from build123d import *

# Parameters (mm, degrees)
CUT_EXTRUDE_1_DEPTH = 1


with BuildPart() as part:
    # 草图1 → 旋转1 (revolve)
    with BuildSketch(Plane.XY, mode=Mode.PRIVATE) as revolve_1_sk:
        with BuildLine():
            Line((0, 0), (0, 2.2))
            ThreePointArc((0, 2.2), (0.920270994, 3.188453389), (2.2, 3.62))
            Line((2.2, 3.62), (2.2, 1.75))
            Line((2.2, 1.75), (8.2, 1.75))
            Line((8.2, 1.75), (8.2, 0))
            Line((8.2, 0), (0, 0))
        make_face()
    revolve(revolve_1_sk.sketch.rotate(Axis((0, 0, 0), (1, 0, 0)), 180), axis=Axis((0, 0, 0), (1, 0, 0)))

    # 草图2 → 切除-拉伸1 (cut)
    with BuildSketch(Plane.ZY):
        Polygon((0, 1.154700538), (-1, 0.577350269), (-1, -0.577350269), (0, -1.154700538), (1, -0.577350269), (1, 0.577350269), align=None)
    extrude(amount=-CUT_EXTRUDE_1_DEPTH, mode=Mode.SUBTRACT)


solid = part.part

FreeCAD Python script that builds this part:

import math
import FreeCAD as App
import Part
import Sketcher

V = App.Vector
Q = App.Units.Quantity


def add_polygon(sketch, points):
    """Adds a closed chain of lines whose ends are joined by coincident constraints."""
    first, n = sketch.GeometryCount, len(points)
    for a, b in zip(points, points[1:] + points[:1]):
        sketch.addGeometry(Part.LineSegment(App.Vector(*a, 0), App.Vector(*b, 0)), False)
    for i in range(n):
        sketch.addConstraint(Sketcher.Constraint("Coincident", first + i, 2, first + (i + 1) % n, 1))

doc = App.newDocument("Part")
body = doc.addObject("PartDesign::Body", "Body")

# Sketch on XY plane
sketch1 = body.newObject("Sketcher::SketchObject", "Sketch")
sketch1.AttachmentSupport = (doc.getObject("XY_Plane"), [""])
sketch1.MapMode = "FlatFace"
sketch1.addGeometry(Part.LineSegment(V(0, 2.2, 0), V(0, 0, 0)), False)
sketch1.addGeometry(Part.LineSegment(V(0, 0, 0), V(8.2, 0, 0)), False)
sketch1.addGeometry(Part.LineSegment(V(8.2, 0, 0), V(8.2, 1.8, 0)), False)
sketch1.addGeometry(Part.LineSegment(V(8.2, 1.8, 0), V(2.2, 1.8, 0)), False)
sketch1.addGeometry(Part.LineSegment(V(2.2, 1.8, 0), V(2.2, 3.6, 0)), False)
sketch1.addGeometry(Part.ArcOfCircle(Part.Circle(V(2.4, 0.9, 0), V(0, 0, 1), 2.8), math.radians(94), math.radians(151)), False)
sketch1.addConstraint(Sketcher.Constraint("Coincident", 0, 2, 1, 1))
sketch1.addConstraint(Sketcher.Constraint("Coincident", 1, 2, 2, 1))
sketch1.addConstraint(Sketcher.Constraint("Coincident", 2, 2, 3, 1))
sketch1.addConstraint(Sketcher.Constraint("Coincident", 3, 2, 4, 1))
sketch1.addConstraint(Sketcher.Constraint("Coincident", 4, 2, 5, 1))
sketch1.addConstraint(Sketcher.Constraint("Coincident", 5, 2, 0, 1))
sketch1.addConstraint(Sketcher.Constraint("Vertical", 0))
sketch1.addConstraint(Sketcher.Constraint("Horizontal", 1))
sketch1.addConstraint(Sketcher.Constraint("Vertical", 2))
sketch1.addConstraint(Sketcher.Constraint("Horizontal", 3))
sketch1.addConstraint(Sketcher.Constraint("Vertical", 4))
sketch1.addConstraint(Sketcher.Constraint("Coincident", 0, 2, -1, 1))
sketch1.addConstraint(Sketcher.Constraint("DistanceX", 3, 2, 3, 1, 6.0))
sketch1.addConstraint(Sketcher.Constraint("DistanceX", 1, 1, 1, 2, 8.2))
sketch1.addConstraint(Sketcher.Constraint("DistanceY", 0, 2, 0, 1, 2.2))
sketch1.addConstraint(Sketcher.Constraint("DistanceY", 2, 1, 2, 2, 1.75))
sketch1.addConstraint(Sketcher.Constraint("DistanceY", 4, 1, 4, 2, 1.87))
sketch1.addConstraint(Sketcher.Constraint("Radius", 5, 2.751708))
revolution = body.newObject("PartDesign::Revolution", "Revolution")
revolution.Profile = sketch1
revolution.ReferenceAxis = (sketch1, ["H_Axis"])
revolution.Angle = 360

# Sketch on YZ plane
sketch2 = body.newObject("Sketcher::SketchObject", "Sketch001")
sketch2.AttachmentSupport = (doc.getObject("YZ_Plane"), [""])
sketch2.MapMode = "FlatFace"
add_polygon(sketch2, [(1.2, 0), (0.6, -1), (-0.6, -1), (-1.2, 0), (-0.6, 1), (0.6, 1)])  # lines 0-5
sketch2.addConstraint(Sketcher.Constraint("Horizontal", 1))
sketch2.addConstraint(Sketcher.Constraint("Horizontal", 4))
sketch2.addConstraint(Sketcher.Constraint("Symmetric", 0, 2, 3, 2, -1, 1))
sketch2.addConstraint(Sketcher.Constraint("Symmetric", 2, 2, 5, 2, -1, 1))
sketch2.addConstraint(Sketcher.Constraint("PointOnObject", 2, 2, -1))
sketch2.addConstraint(Sketcher.Constraint("Parallel", 2, 5))
sketch2.addConstraint(Sketcher.Constraint("Vertical", 1, 2, 3, 2))
sketch2.addConstraint(Sketcher.Constraint("Angle", 0, Q("-120 deg")))
sketch2.addConstraint(Sketcher.Constraint("DistanceY", 0, 2, -1, 1, 1.0))
sketch2.addConstraint(Sketcher.Constraint("DistanceX", 1, 2, 1, 1, 1.154701))
pocket1 = body.newObject("PartDesign::Pocket", "Pocket")
pocket1.Profile = sketch2
pocket1.Length = 1
pocket1.Reversed = True

doc.recompute()
